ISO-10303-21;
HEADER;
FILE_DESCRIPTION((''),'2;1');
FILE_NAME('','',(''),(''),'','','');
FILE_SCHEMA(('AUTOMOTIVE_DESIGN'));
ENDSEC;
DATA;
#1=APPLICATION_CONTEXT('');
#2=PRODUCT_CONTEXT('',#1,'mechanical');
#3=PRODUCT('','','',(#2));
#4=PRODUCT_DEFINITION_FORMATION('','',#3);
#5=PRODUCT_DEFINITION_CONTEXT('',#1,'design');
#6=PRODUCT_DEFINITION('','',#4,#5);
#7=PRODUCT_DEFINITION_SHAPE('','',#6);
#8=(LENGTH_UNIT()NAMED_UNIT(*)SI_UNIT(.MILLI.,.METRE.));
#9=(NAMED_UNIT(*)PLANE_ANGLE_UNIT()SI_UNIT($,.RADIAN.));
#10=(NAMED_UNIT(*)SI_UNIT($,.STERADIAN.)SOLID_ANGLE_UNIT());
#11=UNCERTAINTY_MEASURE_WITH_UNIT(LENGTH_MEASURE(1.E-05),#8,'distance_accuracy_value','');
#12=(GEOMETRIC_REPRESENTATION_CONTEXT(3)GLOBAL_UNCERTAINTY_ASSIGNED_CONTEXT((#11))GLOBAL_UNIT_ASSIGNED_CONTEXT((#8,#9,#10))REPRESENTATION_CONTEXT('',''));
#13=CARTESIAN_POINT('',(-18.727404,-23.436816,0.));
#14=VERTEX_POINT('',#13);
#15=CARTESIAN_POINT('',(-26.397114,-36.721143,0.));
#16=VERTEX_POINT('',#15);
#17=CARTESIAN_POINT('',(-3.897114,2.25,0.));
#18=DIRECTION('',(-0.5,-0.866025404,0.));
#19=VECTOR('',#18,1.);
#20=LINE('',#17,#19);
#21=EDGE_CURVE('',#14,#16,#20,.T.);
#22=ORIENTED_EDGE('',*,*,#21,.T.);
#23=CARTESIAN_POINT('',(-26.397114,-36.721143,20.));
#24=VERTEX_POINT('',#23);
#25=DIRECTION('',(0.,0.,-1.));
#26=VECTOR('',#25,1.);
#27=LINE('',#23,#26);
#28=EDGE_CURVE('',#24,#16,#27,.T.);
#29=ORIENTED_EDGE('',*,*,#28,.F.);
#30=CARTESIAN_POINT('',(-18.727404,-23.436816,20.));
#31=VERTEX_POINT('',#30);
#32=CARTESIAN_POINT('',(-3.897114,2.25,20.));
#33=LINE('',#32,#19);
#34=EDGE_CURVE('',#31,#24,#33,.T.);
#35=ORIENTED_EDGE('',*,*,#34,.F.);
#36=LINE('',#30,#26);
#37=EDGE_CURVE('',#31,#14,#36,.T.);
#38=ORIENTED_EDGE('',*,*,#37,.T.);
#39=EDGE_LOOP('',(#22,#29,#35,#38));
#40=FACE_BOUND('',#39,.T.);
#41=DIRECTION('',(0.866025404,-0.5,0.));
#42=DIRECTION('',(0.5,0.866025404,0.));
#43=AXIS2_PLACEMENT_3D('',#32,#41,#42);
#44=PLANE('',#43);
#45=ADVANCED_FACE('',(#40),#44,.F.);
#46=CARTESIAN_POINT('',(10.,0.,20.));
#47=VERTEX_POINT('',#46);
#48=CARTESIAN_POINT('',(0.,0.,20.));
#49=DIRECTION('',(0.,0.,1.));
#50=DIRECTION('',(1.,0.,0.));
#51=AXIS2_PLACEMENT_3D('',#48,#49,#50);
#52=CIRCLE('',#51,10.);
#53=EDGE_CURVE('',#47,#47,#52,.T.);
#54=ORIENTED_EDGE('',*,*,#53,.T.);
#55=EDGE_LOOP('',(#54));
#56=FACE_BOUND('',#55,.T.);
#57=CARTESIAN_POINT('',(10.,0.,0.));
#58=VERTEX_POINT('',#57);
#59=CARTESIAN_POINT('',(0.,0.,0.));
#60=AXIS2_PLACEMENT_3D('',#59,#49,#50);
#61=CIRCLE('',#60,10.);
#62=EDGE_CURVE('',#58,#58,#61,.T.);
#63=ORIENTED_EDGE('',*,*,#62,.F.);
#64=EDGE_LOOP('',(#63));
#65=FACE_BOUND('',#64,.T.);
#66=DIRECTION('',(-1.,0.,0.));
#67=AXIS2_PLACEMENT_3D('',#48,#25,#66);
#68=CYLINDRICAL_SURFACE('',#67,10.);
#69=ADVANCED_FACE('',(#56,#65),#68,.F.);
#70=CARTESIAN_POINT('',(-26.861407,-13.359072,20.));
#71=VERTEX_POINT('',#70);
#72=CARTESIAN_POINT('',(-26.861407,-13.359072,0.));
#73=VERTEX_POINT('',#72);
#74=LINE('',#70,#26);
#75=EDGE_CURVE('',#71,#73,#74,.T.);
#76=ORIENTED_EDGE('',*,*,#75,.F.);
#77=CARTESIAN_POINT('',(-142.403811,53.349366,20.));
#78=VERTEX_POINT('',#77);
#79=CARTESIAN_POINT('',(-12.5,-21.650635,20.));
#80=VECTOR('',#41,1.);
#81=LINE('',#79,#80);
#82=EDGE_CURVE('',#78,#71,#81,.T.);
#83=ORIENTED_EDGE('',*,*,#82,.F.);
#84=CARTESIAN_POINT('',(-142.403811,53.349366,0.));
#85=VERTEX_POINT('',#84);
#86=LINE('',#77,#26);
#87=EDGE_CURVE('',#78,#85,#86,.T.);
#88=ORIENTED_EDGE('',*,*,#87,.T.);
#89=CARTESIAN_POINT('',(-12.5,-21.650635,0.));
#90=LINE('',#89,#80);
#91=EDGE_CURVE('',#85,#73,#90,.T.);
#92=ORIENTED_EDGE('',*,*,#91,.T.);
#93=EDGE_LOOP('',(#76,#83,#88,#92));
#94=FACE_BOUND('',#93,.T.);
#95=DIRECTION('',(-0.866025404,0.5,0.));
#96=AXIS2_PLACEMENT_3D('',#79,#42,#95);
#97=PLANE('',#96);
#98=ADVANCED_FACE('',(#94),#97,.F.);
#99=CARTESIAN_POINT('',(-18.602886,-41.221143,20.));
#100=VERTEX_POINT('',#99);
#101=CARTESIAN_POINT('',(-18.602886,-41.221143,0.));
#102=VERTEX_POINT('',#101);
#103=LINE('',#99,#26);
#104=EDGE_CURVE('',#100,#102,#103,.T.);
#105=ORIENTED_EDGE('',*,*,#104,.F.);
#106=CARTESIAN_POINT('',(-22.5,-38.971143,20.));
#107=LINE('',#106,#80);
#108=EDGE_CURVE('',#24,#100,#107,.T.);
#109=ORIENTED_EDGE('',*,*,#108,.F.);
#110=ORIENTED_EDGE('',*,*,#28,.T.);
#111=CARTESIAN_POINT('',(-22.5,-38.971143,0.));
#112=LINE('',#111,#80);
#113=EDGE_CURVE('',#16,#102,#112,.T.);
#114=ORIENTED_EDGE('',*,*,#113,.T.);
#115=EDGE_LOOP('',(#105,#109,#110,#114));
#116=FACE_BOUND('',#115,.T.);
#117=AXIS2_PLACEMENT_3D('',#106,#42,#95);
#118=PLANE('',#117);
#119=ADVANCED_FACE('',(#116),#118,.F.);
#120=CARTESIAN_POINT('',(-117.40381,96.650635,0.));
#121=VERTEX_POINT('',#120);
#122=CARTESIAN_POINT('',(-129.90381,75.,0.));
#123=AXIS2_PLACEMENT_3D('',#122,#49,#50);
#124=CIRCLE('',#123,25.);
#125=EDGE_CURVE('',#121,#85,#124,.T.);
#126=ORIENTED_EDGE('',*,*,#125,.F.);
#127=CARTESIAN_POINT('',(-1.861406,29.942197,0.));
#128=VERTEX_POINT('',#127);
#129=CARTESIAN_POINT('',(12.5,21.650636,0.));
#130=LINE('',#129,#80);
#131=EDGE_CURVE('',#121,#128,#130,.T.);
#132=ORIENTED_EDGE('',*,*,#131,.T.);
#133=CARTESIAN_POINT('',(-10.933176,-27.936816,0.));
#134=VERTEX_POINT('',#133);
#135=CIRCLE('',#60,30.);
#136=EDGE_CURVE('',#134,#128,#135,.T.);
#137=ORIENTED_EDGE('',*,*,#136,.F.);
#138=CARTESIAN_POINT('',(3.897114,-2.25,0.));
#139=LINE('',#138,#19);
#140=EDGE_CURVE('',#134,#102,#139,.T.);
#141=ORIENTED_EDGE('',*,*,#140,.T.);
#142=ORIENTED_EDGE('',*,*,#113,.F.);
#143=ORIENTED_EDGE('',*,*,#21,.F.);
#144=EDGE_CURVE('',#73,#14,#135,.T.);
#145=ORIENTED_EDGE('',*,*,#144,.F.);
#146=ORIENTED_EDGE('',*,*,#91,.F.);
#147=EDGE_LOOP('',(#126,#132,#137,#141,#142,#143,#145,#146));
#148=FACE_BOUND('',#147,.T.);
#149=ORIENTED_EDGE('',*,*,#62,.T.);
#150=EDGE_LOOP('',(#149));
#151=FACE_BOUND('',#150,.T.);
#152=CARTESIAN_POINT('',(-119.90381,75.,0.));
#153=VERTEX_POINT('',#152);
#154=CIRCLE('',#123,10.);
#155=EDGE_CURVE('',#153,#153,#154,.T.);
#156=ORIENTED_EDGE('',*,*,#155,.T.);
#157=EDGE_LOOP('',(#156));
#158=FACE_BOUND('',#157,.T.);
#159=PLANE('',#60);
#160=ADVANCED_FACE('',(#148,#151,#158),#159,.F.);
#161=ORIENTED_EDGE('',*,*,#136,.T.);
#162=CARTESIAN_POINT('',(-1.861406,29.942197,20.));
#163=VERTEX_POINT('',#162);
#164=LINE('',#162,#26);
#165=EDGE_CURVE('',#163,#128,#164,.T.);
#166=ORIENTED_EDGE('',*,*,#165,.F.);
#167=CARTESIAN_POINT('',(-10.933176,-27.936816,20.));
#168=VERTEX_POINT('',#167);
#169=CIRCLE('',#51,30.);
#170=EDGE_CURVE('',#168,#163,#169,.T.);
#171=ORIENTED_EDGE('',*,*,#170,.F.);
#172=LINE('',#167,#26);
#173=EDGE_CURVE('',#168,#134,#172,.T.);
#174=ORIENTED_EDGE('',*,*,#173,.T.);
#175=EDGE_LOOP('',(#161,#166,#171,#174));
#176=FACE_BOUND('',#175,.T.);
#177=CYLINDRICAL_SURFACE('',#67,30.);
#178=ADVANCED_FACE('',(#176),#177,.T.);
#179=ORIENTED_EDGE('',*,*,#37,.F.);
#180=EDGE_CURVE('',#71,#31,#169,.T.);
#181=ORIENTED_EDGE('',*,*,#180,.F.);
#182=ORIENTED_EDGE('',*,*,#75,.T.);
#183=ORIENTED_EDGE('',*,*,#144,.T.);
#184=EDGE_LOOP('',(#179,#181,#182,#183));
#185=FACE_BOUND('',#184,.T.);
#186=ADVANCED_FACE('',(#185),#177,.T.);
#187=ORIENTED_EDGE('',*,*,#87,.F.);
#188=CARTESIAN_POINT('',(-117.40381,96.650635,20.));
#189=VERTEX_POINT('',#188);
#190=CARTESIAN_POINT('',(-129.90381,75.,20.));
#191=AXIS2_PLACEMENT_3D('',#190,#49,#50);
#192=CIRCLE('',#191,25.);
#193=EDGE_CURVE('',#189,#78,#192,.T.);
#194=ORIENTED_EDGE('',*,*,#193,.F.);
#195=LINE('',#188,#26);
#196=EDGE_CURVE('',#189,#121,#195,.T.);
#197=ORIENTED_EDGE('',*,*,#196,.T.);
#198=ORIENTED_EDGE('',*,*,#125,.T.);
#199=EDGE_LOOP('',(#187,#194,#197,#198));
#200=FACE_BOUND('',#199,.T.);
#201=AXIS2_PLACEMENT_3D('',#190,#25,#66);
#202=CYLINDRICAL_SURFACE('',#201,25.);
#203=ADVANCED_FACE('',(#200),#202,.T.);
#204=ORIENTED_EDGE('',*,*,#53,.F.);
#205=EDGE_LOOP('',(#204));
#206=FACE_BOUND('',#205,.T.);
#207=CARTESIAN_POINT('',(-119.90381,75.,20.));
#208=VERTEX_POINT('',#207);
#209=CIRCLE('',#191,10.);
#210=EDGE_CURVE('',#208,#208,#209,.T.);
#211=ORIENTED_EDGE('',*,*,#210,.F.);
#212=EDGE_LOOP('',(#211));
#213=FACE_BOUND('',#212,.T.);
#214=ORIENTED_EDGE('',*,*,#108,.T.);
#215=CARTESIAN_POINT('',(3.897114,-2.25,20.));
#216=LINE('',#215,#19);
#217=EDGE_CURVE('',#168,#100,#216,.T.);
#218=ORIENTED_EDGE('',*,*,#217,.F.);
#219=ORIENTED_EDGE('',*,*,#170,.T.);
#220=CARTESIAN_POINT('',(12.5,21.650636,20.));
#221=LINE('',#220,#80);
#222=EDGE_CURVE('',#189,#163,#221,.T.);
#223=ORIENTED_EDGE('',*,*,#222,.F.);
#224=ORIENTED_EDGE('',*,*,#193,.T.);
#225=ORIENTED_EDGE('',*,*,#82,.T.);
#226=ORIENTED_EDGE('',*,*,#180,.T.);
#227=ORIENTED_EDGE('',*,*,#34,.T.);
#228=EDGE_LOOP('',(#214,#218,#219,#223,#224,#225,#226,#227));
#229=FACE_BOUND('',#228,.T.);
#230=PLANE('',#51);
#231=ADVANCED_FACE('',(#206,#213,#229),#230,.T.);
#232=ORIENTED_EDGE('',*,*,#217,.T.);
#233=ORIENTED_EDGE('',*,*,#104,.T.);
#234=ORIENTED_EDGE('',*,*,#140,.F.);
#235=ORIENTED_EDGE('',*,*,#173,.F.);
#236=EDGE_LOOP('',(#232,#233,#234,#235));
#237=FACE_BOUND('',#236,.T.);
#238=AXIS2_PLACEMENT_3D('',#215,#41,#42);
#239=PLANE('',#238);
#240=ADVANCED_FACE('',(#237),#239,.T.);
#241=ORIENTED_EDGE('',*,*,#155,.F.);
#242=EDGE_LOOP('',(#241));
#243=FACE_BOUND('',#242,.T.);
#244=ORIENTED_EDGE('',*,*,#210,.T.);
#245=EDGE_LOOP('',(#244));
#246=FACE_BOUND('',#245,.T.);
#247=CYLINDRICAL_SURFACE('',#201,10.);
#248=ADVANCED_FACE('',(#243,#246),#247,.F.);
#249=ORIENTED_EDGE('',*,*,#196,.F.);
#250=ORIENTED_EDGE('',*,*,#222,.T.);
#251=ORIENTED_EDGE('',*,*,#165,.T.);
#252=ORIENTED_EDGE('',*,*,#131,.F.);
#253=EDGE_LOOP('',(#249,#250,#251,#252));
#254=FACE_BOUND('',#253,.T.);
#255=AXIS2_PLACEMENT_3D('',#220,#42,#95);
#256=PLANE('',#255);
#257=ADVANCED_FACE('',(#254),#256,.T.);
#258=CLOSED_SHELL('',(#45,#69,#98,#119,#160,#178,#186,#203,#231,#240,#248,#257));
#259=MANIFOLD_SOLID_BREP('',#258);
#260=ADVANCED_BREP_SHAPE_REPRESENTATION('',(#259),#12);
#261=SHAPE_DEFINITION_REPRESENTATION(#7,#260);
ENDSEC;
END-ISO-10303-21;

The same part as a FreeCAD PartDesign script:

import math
import FreeCAD as App
import Part
import Sketcher
from FreeCAD import Vector
Q = App.Units.Quantity

doc = App.newDocument("Part")
body = doc.addObject("PartDesign::Body", "Body")

sketch1 = body.newObject("Sketcher::SketchObject", "Sketch")
sketch1.AttachmentSupport = (doc.getObject("XY_Plane"), [""])
sketch1.MapMode = "FlatFace"
sketch1.addGeometry(Part.LineSegment(Vector(-2, 30, 0), Vector(-117, 97, 0)), False)
sketch1.addGeometry(Part.ArcOfCircle(Part.Circle(Vector(-130, 75, 0), Vector(0, 0, 1), 25), math.radians(60), math.radians(240)), False)
sketch1.addGeometry(Part.LineSegment(Vector(-142, 53, 0), Vector(-27, -13, 0)), False)
sketch1.addGeometry(Part.ArcOfCircle(Part.Circle(Vector(0, 0, 0), Vector(0, 0, 1), 30), math.radians(-154), math.radians(-129)), False)
sketch1.addGeometry(Part.LineSegment(Vector(-19, -23, 0), Vector(-26, -37, 0)), False)
sketch1.addGeometry(Part.LineSegment(Vector(-26, -37, 0), Vector(-19, -41, 0)), False)
sketch1.addGeometry(Part.LineSegment(Vector(-19, -41, 0), Vector(-11, -28, 0)), False)
sketch1.addGeometry(Part.ArcOfCircle(Part.Circle(Vector(0, 0, 0), Vector(0, 0, 1), 30), math.radians(-111), math.radians(94)), False)
sketch1.addGeometry(Part.Circle(Vector(0, 0, 0), Vector(0, 0, 1), 10), False)
sketch1.addGeometry(Part.Circle(Vector(-130, 75, 0), Vector(0, 0, 1), 10), False)
sketch1.addConstraint(Sketcher.Constraint("Tangent", 0, 2, 1, 1))
sketch1.addConstraint(Sketcher.Constraint("Tangent", 1, 2, 2, 1))
sketch1.addConstraint(Sketcher.Constraint("Coincident", 2, 2, 3, 1))
sketch1.addConstraint(Sketcher.Constraint("Coincident", 3, 2, 4, 1))
sketch1.addConstraint(Sketcher.Constraint("Coincident", 4, 2, 5, 1))
sketch1.addConstraint(Sketcher.Constraint("Coincident", 5, 2, 6, 1))
sketch1.addConstraint(Sketcher.Constraint("Coincident", 6, 2, 7, 1))
sketch1.addConstraint(Sketcher.Constraint("Coincident", 7, 2, 0, 1))
sketch1.addConstraint(Sketcher.Constraint("Coincident", 3, 3, -1, 1))
sketch1.addConstraint(Sketcher.Constraint("Coincident", 7, 3, -1, 1))
sketch1.addConstraint(Sketcher.Constraint("Coincident", 8, 3, -1, 1))
sketch1.addConstraint(Sketcher.Constraint("Coincident", 9, 3, 1, 3))
sketch1.addConstraint(Sketcher.Constraint("Equal", 3, 7))
sketch1.addConstraint(Sketcher.Constraint("Equal", 8, 9))
sketch1.addConstraint(Sketcher.Constraint("Parallel", 0, 2))
sketch1.addConstraint(Sketcher.Constraint("Perpendicular", 2, 4))
sketch1.addConstraint(Sketcher.Constraint("Perpendicular", 4, 5))
sketch1.addConstraint(Sketcher.Constraint("Perpendicular", 5, 6))
sketch1.addConstraint(Sketcher.Constraint("Equal", 0, 2))
sketch1.addConstraint(Sketcher.Constraint("Equal", 4, 6))
sketch1.addConstraint(Sketcher.Constraint("Diameter", 8, 20.0))
sketch1.addConstraint(Sketcher.Constraint("Radius", 1, 25.0))
sketch1.addConstraint(Sketcher.Constraint("Radius", 3, 30.0))
sketch1.addConstraint(Sketcher.Constraint("Angle", 0, Q("150 deg")))
sketch1.addConstraint(Sketcher.Constraint("Distance", 5, 9.0))
sketch1.addConstraint(Sketcher.Constraint("DistanceY", -1, 1, 1, 3, 75.0))
sketch1.addConstraint(Sketcher.Constraint("Distance", 4, 15.33942))
pad1 = body.newObject("PartDesign::Pad", "Pad")
pad1.Profile = sketch1
pad1.Length = 20

doc.recompute()
